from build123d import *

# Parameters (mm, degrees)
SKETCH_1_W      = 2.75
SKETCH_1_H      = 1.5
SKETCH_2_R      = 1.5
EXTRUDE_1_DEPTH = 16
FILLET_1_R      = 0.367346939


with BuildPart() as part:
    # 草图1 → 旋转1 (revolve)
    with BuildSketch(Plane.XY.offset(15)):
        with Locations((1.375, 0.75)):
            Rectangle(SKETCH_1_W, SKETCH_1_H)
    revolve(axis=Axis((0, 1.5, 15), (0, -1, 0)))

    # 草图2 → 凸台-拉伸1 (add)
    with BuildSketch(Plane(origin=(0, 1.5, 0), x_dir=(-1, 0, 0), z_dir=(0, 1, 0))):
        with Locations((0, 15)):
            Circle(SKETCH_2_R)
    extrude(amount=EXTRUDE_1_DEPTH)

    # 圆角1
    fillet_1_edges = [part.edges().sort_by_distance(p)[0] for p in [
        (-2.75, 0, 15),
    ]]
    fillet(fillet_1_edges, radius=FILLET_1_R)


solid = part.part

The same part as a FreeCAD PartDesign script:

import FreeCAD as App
import Part
import Sketcher
Q = App.Units.Quantity


def edges_at(feature, points):
    """Names of the edges that pass closest to the given points."""
    edges = feature.Shape.Edges
    near = lambda p: min(range(len(edges)), key=lambda i: edges[i].distToShape(Part.Vertex(*p))[0])
    return sorted({f"Edge{near(p) + 1}" for p in points})


def add_polygon(sketch, points):
    """Adds a closed chain of lines whose ends are joined by coincident constraints."""
    first, n = sketch.GeometryCount, len(points)
    for a, b in zip(points, points[1:] + points[:1]):
        sketch.addGeometry(Part.LineSegment(App.Vector(*a, 0), App.Vector(*b, 0)), False)
    for i in range(n):
        sketch.addConstraint(Sketcher.Constraint("Coincident", first + i, 2, first + (i + 1) % n, 1))

doc = App.newDocument("Part")
params = doc.addObject("Spreadsheet::Sheet", "Params")
for row, (alias, value) in enumerate([
    ("sketch1_height", "1.5 mm"),
    ("sketch1_width", "2.75 mm"),
    ("revolution_angle", "360 deg"),
    ("sketch2_diameter", "3 mm"),
    ("pad1_length", "16 mm"),
    ("fillet_radius", "0.367347 mm"),
], start=1):
    params.set(f"A{row}", alias)
    params.set(f"B{row}", "=" + value)
    params.setAlias(f"B{row}", alias)

body = doc.addObject("PartDesign::Body", "Body")

sketch1 = body.newObject("Sketcher::SketchObject", "Sketch")
sketch1.AttachmentSupport = (doc.getObject("XY_Plane"), [""])
sketch1.MapMode = "FlatFace"
sketch1.AttachmentOffset = App.Placement(App.Vector(0, 0, 15), App.Rotation())
add_polygon(sketch1, [(0, 1.5), (0, 0), (2.8, 0), (2.8, 1.5)])
sketch1.addConstraint(Sketcher.Constraint("Vertical", 0))
sketch1.addConstraint(Sketcher.Constraint("Horizontal", 1))
sketch1.addConstraint(Sketcher.Constraint("Vertical", 2))
sketch1.addConstraint(Sketcher.Constraint("Horizontal", 3))
sketch1.addConstraint(Sketcher.Constraint("Coincident", 0, 2, -1, 1))
sketch1.addConstraint(Sketcher.Constraint("DistanceY", 0, 2, 0, 1, Q("1.5 mm")))
sketch1.addConstraint(Sketcher.Constraint("DistanceX", 1, 1, 1, 2, Q("2.75 mm")))
sketch1.setExpression("Constraints[9]", "Params.sketch1_height")
sketch1.setExpression("Constraints[10]", "Params.sketch1_width")
revolution = body.newObject("PartDesign::Revolution", "Revolution")
revolution.Profile = sketch1
revolution.ReferenceAxis = (sketch1, ["V_Axis"])
revolution.setExpression("Angle", "Params.revolution_angle")

sketch2 = body.newObject("Sketcher::SketchObject", "Sketch001")
sketch2.AttachmentSupport = (doc.getObject("XZ_Plane"), [""])
sketch2.MapMode = "FlatFace"
sketch2.AttachmentOffset = App.Placement(App.Vector(0, 0, -1.5), App.Rotation())
sketch2.addGeometry(Part.Circle(App.Vector(0, 15, 0), App.Vector(0, 0, 1), 1.5), False)
sketch2.addConstraint(Sketcher.Constraint("PointOnObject", 0, 3, -2))
sketch2.addConstraint(Sketcher.Constraint("Diameter", 0, Q("3 mm")))
sketch2.addConstraint(Sketcher.Constraint("DistanceY", -1, 1, 0, 3, Q("15 mm")))
sketch2.setExpression("Constraints[1]", "Params.sketch2_diameter")
pad1 = body.newObject("PartDesign::Pad", "Pad")
pad1.Profile = sketch2
pad1.setExpression("Length", "Params.pad1_length")
pad1.Reversed = True
doc.recompute()

fillet = body.newObject("PartDesign::Fillet", "Fillet")
fillet.Base = (pad1, edges_at(pad1, [(-2.75, 0, 15)]))
fillet.setExpression("Radius", "Params.fillet_radius")

doc.recompute()
